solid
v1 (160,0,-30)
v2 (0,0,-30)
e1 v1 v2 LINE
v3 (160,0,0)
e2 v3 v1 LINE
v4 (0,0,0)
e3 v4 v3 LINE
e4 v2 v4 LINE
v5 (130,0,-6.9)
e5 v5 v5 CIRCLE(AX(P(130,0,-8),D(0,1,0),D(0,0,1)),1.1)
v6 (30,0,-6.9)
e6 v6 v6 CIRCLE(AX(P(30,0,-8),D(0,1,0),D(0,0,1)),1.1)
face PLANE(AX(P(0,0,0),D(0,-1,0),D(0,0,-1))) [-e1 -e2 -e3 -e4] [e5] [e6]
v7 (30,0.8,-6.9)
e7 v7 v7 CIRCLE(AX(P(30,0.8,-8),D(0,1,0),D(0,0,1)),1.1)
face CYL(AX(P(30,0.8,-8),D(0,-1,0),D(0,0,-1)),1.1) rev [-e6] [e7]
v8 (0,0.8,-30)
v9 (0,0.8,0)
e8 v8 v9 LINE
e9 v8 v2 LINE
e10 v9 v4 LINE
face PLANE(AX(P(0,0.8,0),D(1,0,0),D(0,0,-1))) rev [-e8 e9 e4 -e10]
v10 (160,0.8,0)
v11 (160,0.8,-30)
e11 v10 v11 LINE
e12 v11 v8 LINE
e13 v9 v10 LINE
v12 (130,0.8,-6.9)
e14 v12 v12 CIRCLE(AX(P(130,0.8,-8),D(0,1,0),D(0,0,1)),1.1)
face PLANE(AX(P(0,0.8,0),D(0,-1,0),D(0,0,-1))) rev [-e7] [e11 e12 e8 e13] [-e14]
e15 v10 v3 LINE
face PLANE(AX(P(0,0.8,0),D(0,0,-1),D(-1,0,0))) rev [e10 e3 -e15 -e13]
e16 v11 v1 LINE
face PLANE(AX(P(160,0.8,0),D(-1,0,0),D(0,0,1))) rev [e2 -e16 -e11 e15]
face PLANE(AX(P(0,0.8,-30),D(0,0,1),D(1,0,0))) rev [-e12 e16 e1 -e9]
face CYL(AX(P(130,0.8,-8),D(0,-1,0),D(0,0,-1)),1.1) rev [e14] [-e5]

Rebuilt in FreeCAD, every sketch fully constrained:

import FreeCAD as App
import Part
import Sketcher
Q = App.Units.Quantity


def add_polygon(sketch, points):
    """Adds a closed chain of lines whose ends are joined by coincident constraints."""
    first, n = sketch.GeometryCount, len(points)
    for a, b in zip(points, points[1:] + points[:1]):
        sketch.addGeometry(Part.LineSegment(App.Vector(*a, 0), App.Vector(*b, 0)), False)
    for i in range(n):
        sketch.addConstraint(Sketcher.Constraint("Coincident", first + i, 2, first + (i + 1) % n, 1))

doc = App.newDocument("Part")
body = doc.addObject("PartDesign::Body", "Body")

sketch1 = body.newObject("Sketcher::SketchObject", "Sketch")
sketch1.AttachmentSupport = (doc.getObject("XZ_Plane"), [""])
sketch1.MapMode = "FlatFace"
add_polygon(sketch1, [(0, -30), (0, 0), (160, 0), (160, -30)])
sketch1.addGeometry(Part.Circle(App.Vector(30, -8, 0), App.Vector(0, 0, 1), 1.1), False)
sketch1.addGeometry(Part.Circle(App.Vector(130, -8, 0), App.Vector(0, 0, 1), 1.1), False)
sketch1.addConstraint([
    Sketcher.Constraint("Vertical", 0),
    Sketcher.Constraint("Horizontal", 1),
    Sketcher.Constraint("Vertical", 2),
    Sketcher.Constraint("Horizontal", 3),
    Sketcher.Constraint("Coincident", 0, 2, -1, 1),
    Sketcher.Constraint("Equal", 4, 5),
    Sketcher.Constraint("Horizontal", 4, 3, 5, 3),
    Sketcher.Constraint("Diameter", 4, Q("2.2 mm")),
    Sketcher.Constraint("DistanceX", 1, 1, 1, 2, Q("160 mm")),
    Sketcher.Constraint("DistanceY", 0, 1, 0, 2, Q("30 mm")),
    Sketcher.Constraint("DistanceX", -1, 1, 4, 3, Q("30 mm")),
    Sketcher.Constraint("DistanceY", 4, 3, -1, 1, Q("8 mm")),
    Sketcher.Constraint("DistanceX", -1, 1, 5, 3, Q("130 mm")),
])
pad1 = body.newObject("PartDesign::Pad", "Pad")
pad1.Profile = sketch1
pad1.Length = 0.8
pad1.Reversed = True

doc.recompute()
